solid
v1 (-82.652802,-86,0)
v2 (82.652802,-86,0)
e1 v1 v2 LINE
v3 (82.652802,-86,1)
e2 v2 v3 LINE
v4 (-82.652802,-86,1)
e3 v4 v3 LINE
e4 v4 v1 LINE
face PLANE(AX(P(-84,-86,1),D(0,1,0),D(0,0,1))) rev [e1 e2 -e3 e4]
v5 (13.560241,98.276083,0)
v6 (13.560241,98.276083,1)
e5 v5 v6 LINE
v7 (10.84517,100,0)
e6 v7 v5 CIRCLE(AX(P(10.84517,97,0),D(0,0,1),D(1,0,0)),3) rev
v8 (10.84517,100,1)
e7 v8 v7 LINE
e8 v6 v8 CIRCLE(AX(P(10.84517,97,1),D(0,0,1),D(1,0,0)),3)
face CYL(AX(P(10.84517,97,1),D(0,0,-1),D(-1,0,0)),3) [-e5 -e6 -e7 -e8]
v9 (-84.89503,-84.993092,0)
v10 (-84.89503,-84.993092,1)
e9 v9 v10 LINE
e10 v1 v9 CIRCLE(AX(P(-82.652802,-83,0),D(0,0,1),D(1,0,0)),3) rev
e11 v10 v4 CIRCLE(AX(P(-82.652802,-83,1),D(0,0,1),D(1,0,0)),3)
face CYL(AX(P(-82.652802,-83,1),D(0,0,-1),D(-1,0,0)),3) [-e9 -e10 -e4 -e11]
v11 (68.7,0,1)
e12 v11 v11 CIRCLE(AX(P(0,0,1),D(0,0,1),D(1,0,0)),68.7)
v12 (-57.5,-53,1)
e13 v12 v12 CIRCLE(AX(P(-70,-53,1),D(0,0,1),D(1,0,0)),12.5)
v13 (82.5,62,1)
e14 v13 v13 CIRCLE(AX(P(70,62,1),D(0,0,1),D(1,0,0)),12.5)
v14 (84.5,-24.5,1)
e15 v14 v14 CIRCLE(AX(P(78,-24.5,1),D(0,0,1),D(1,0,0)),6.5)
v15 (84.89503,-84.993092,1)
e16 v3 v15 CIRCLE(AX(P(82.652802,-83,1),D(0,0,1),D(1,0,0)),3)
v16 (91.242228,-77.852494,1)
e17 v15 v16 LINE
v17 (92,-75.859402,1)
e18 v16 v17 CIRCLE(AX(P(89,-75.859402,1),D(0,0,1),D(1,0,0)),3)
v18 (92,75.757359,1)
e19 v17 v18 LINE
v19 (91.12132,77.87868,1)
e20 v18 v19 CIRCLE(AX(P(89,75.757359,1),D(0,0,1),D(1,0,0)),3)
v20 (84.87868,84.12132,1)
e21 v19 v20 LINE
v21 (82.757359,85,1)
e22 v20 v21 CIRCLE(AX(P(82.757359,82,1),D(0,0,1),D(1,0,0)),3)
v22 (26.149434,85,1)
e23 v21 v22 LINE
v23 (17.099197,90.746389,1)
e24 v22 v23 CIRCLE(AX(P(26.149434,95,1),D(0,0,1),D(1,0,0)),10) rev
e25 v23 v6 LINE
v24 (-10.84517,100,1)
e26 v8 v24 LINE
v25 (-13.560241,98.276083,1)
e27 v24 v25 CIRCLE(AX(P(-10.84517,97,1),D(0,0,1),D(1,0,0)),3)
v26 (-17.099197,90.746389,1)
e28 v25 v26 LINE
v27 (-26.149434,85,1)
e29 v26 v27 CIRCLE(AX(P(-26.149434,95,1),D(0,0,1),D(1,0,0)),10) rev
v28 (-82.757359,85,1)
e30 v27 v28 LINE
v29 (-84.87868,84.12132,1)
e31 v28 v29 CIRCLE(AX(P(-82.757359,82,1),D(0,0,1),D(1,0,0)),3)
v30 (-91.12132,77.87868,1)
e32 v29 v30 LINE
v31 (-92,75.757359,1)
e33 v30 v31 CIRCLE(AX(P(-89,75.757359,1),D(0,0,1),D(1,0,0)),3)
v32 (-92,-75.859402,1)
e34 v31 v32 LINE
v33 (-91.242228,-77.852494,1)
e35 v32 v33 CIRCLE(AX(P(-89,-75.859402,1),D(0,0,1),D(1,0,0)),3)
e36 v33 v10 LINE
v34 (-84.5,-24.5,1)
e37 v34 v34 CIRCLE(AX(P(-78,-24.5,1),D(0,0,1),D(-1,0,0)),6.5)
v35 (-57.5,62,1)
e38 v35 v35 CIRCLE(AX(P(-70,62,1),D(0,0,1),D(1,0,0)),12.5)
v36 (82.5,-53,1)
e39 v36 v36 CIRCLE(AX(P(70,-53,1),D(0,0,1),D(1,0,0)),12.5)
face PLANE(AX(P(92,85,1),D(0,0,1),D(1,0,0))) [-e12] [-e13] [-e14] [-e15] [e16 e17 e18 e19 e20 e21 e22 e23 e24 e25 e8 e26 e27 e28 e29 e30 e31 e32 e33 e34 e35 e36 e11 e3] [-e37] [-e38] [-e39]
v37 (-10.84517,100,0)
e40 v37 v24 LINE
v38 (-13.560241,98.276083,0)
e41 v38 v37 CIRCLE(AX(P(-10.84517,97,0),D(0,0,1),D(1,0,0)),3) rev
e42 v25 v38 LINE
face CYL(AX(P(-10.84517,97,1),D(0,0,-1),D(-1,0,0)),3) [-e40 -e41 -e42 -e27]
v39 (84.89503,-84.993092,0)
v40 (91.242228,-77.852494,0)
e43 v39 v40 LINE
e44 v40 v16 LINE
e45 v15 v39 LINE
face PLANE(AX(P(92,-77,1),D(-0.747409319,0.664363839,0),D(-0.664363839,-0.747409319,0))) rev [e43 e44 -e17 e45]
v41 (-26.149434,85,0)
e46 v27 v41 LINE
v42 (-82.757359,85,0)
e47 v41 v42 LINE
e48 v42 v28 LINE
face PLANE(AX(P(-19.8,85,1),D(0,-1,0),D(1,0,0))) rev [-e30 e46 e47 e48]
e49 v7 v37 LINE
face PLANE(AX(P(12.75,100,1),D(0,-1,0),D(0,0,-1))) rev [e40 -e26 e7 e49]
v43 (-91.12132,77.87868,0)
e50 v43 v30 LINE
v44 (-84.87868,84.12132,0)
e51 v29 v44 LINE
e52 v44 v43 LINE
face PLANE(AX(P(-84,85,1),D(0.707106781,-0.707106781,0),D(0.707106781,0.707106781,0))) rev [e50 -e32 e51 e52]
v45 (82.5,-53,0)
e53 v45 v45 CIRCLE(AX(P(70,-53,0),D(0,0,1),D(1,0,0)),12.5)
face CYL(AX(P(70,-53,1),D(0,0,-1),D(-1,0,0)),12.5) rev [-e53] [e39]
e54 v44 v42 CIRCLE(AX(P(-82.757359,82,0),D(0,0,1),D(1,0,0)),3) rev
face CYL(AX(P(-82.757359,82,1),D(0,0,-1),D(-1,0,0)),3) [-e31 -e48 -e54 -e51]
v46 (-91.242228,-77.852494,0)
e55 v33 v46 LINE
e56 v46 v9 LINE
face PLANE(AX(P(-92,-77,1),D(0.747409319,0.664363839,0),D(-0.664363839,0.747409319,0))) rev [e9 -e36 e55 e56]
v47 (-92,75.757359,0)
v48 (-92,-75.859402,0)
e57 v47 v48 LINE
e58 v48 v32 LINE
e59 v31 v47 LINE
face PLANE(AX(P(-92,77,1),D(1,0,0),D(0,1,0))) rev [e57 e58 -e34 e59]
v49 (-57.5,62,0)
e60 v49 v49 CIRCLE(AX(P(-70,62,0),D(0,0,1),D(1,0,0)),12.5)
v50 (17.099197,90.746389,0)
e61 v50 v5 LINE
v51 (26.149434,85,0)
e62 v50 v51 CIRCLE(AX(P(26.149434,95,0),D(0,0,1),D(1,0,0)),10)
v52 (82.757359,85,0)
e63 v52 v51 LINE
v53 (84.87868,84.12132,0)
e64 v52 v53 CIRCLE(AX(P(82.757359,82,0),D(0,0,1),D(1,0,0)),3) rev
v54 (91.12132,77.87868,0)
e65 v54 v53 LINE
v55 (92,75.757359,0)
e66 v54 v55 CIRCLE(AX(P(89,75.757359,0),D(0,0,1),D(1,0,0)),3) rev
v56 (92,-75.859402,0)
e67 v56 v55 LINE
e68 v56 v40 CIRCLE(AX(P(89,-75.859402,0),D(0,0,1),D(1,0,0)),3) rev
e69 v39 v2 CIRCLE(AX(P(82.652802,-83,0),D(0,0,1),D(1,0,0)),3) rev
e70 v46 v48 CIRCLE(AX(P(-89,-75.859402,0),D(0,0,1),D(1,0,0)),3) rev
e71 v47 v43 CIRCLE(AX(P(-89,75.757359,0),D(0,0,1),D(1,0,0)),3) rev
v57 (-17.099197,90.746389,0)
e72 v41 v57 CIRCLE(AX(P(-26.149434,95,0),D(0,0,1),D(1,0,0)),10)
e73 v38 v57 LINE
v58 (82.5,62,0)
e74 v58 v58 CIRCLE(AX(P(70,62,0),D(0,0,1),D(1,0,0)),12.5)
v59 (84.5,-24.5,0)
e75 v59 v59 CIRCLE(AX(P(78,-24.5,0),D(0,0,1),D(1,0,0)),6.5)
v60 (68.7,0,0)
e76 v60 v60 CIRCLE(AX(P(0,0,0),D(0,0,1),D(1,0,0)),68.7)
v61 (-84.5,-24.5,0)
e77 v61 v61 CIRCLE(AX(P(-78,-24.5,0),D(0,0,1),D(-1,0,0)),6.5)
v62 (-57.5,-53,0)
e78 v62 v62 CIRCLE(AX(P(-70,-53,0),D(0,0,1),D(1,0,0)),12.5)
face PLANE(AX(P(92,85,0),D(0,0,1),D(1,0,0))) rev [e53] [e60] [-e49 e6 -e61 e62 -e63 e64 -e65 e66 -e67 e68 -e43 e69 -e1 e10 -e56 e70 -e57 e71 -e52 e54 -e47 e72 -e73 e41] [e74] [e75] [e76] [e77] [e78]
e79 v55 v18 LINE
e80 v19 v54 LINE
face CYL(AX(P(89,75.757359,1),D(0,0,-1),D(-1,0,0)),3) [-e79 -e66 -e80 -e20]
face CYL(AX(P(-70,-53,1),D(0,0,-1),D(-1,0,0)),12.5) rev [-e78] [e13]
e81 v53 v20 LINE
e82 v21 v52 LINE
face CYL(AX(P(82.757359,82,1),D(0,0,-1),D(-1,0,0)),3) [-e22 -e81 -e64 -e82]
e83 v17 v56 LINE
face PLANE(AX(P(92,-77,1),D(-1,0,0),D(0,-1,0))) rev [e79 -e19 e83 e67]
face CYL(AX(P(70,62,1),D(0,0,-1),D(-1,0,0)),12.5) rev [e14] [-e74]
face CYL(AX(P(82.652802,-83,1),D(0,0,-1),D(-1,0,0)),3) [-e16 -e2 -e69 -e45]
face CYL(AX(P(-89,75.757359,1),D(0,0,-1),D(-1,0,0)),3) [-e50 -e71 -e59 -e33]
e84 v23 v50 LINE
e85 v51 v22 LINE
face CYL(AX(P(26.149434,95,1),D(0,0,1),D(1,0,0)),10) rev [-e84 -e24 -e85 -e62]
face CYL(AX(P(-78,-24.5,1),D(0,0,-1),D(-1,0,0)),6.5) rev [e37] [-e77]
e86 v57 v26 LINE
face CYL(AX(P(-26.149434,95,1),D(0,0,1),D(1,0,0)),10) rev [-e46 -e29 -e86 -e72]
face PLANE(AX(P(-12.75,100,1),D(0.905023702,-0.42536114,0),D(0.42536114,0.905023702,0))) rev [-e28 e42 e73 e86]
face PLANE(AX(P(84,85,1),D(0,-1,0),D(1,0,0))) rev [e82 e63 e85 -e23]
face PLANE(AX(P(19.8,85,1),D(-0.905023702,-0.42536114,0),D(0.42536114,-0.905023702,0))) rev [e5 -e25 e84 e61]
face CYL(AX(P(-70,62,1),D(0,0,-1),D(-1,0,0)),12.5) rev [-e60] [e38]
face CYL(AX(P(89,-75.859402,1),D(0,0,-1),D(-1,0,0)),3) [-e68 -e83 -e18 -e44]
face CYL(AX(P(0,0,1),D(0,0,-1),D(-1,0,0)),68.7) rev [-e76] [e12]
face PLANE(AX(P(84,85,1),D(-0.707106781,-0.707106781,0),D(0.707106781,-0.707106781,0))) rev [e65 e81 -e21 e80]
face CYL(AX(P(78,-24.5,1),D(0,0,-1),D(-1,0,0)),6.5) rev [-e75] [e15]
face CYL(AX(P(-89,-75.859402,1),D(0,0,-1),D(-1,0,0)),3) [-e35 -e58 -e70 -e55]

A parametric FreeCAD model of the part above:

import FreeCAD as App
import Part
import Sketcher


def edges_at(feature, points):
    """Names of the edges that pass closest to the given points."""
    edges = feature.Shape.Edges
    near = lambda p: min(range(len(edges)), key=lambda i: edges[i].distToShape(Part.Vertex(*p))[0])
    return sorted({f"Edge{near(p) + 1}" for p in points})


def add_polygon(sketch, points):
    """Adds a closed chain of lines whose ends are joined by coincident constraints."""
    first, n = sketch.GeometryCount, len(points)
    for a, b in zip(points, points[1:] + points[:1]):
        sketch.addGeometry(Part.LineSegment(App.Vector(*a, 0), App.Vector(*b, 0)), False)
    for i in range(n):
        sketch.addConstraint(Sketcher.Constraint("Coincident", first + i, 2, first + (i + 1) % n, 1))

doc = App.newDocument("Part")
params = doc.addObject("Spreadsheet::Sheet", "Params")
for row, (alias, value) in enumerate([
    ("sketch1_diameter", "25 mm"),
    ("sketch1_diameter2", "13 mm"),
    ("sketch1_diameter3", "137.4 mm"),
    ("sketch1_width", "168 mm"),
    ("sketch1_height", "154 mm"),
    ("pad1_length", "1 mm"),
    ("fillet_radius", "10 mm"),
    ("fillet2_radius", "3 mm"),
], start=1):
    params.set(f"A{row}", alias)
    params.set(f"B{row}", "=" + value)
    params.setAlias(f"B{row}", alias)

body = doc.addObject("PartDesign::Body", "Body")

sketch1 = body.newObject("Sketcher::SketchObject", "Sketch")
sketch1.AttachmentSupport = (doc.getObject("XY_Plane"), [""])
sketch1.MapMode = "FlatFace"
add_polygon(sketch1, [(92, 77), (84, 85), (20, 85), (13, 100), (-13, 100), (-20, 85), (-84, 85), (-92, 77), (-92, -77), (-84, -86), (84, -86), (92, -77)])
sketch1.addGeometry(Part.Circle(App.Vector(70, -53, 0), App.Vector(0, 0, 1), 12), False)
sketch1.addGeometry(Part.Circle(App.Vector(78, -24, 0), App.Vector(0, 0, 1), 6), False)
sketch1.addGeometry(Part.Circle(App.Vector(-70, -53, 0), App.Vector(0, 0, 1), 12), False)
sketch1.addGeometry(Part.Circle(App.Vector(0, 0, 0), App.Vector(0, 0, 1), 69), False)
sketch1.addGeometry(Part.Circle(App.Vector(-78, -24, 0), App.Vector(0, 0, 1), 6), False)
sketch1.addGeometry(Part.Circle(App.Vector(70, 62, 0), App.Vector(0, 0, 1), 12), False)
sketch1.addGeometry(Part.Circle(App.Vector(-70, 62, 0), App.Vector(0, 0, 1), 12), False)
sketch1.addConstraint(Sketcher.Constraint("Horizontal", 1))
sketch1.addConstraint(Sketcher.Constraint("Horizontal", 3))
sketch1.addConstraint(Sketcher.Constraint("Horizontal", 5))
sketch1.addConstraint(Sketcher.Constraint("Vertical", 7))
sketch1.addConstraint(Sketcher.Constraint("Horizontal", 9))
sketch1.addConstraint(Sketcher.Constraint("Vertical", 11))
sketch1.addConstraint(Sketcher.Constraint("Coincident", 15, 3, -1, 1))
sketch1.addConstraint(Sketcher.Constraint("Equal", 12, 14))
sketch1.addConstraint(Sketcher.Constraint("Equal", 13, 16))
sketch1.addConstraint(Sketcher.Constraint("Equal", 14, 17))
sketch1.addConstraint(Sketcher.Constraint("Equal", 17, 18))
sketch1.addConstraint(Sketcher.Constraint("Symmetric", 6, 2, 10, 2, -1, 1))
sketch1.addConstraint(Sketcher.Constraint("Symmetric", 12, 3, 14, 3, -2))
sketch1.addConstraint(Sketcher.Constraint("Symmetric", 13, 3, 16, 3, -2))
sketch1.addConstraint(Sketcher.Constraint("Symmetric", 17, 3, 18, 3, -2))
sketch1.addConstraint(Sketcher.Constraint("Symmetric", 1, 2, 4, 2, -2))
sketch1.addConstraint(Sketcher.Constraint("Perpendicular", 0, 6))
sketch1.addConstraint(Sketcher.Constraint("Horizontal", 7, 2, 10, 2))
sketch1.addConstraint(Sketcher.Constraint("Horizontal", 6, 2, 11, 2))
sketch1.addConstraint(Sketcher.Constraint("Vertical", 12, 3, 17, 3))
sketch1.addConstraint(Sketcher.Constraint("Vertical", 5, 2, 8, 2))
sketch1.addConstraint(Sketcher.Constraint("Vertical", 0, 2, 9, 2))
sketch1.addConstraint(Sketcher.Constraint("Equal", 1, 5))
sketch1.addConstraint(Sketcher.Constraint("Equal", 2, 4))
sketch1.addConstraint(Sketcher.Constraint("Diameter", 12, 25.0))
sketch1.addConstraint(Sketcher.Constraint("Diameter", 13, 13.0))
sketch1.addConstraint(Sketcher.Constraint("Diameter", 15, 137.4))
sketch1.addConstraint(Sketcher.Constraint("DistanceX", 9, 1, 9, 2, 168.0))
sketch1.addConstraint(Sketcher.Constraint("DistanceY", 7, 2, 7, 1, 154.0))
sketch1.addConstraint(Sketcher.Constraint("DistanceX", 1, 2, 1, 1, 64.2))
sketch1.addConstraint(Sketcher.Constraint("DistanceX", 3, 2, 3, 1, 25.5))
sketch1.addConstraint(Sketcher.Constraint("DistanceX", -1, 1, 12, 3, 70.0))
sketch1.addConstraint(Sketcher.Constraint("DistanceY", 12, 3, -1, 1, 53.0))
sketch1.addConstraint(Sketcher.Constraint("DistanceX", -1, 1, 13, 3, 78.0))
sketch1.addConstraint(Sketcher.Constraint("DistanceY", -1, 1, 17, 3, 62.0))
sketch1.addConstraint(Sketcher.Constraint("DistanceY", -1, 1, 0, 2, 85.0))
sketch1.addConstraint(Sketcher.Constraint("DistanceY", -1, 1, 2, 2, 100.0))
sketch1.addConstraint(Sketcher.Constraint("DistanceY", 8, 2, -1, 1, 86.0))
sketch1.addConstraint(Sketcher.Constraint("DistanceY", 13, 3, -1, 1, 24.5))
sketch1.setExpression("Constraints[36]", "Params.sketch1_diameter")
sketch1.setExpression("Constraints[37]", "Params.sketch1_diameter2")
sketch1.setExpression("Constraints[38]", "Params.sketch1_diameter3")
sketch1.setExpression("Constraints[39]", "Params.sketch1_width")
sketch1.setExpression("Constraints[40]", "Params.sketch1_height")
pad1 = body.newObject("PartDesign::Pad", "Pad")
pad1.Profile = sketch1
pad1.setExpression("Length", "Params.pad1_length")
doc.recompute()

fillet = body.newObject("PartDesign::Fillet", "Fillet")
fillet.Base = (pad1, edges_at(pad1, [(-19.8, 85, 0.5), (19.8, 85, 0.5)]))
fillet.setExpression("Radius", "Params.fillet_radius")
doc.recompute()

fillet2 = body.newObject("PartDesign::Fillet", "Fillet001")
fillet2.Base = (fillet, edges_at(fillet, [
    (92, -77, 0.5),
    (84, -86, 0.5),
    (-84, -86, 0.5),
    (-92, -77, 0.5),
    (-92, 77, 0.5),
    (-84, 85, 0.5),
    (-12.75, 100, 0.5),
    (12.75, 100, 0.5),
    (84, 85, 0.5),
    (92, 77, 0.5),
]))
fillet2.setExpression("Radius", "Params.fillet2_radius")

doc.recompute()
